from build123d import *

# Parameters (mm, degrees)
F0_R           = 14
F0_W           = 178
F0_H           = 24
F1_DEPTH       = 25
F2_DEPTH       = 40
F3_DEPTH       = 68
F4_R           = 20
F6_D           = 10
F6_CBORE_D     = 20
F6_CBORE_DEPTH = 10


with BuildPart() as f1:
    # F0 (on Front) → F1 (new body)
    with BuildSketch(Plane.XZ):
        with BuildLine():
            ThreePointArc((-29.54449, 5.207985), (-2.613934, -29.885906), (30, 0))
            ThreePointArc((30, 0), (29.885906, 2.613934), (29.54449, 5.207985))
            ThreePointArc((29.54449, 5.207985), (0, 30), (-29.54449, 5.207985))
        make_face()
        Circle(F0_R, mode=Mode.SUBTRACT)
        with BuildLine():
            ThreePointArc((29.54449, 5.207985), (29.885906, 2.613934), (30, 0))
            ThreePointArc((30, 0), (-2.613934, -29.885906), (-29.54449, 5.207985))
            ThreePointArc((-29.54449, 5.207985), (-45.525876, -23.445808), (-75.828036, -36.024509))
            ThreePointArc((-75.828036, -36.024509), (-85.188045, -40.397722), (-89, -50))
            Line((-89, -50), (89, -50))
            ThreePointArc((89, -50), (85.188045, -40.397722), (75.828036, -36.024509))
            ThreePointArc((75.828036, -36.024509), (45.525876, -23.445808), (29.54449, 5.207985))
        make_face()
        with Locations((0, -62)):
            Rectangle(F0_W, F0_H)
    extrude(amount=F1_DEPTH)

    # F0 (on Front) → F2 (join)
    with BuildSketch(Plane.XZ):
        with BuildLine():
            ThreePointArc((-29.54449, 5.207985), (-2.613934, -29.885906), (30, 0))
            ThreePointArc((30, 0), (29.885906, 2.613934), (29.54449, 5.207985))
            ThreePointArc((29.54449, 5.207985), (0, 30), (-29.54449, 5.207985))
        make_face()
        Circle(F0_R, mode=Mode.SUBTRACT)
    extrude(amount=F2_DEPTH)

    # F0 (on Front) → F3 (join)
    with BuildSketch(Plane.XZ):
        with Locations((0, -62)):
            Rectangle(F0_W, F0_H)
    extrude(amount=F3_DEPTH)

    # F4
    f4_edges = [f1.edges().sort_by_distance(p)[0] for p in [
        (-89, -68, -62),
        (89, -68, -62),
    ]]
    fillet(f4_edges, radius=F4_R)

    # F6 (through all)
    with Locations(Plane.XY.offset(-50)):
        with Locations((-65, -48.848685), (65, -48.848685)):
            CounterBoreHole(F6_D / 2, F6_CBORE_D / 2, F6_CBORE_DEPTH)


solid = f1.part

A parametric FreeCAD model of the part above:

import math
import FreeCAD as App
import Part
import Sketcher
from FreeCAD import Vector


def edges_at(feature, points):
    """Names of the edges that pass closest to the given points."""
    edges = feature.Shape.Edges
    near = lambda p: min(range(len(edges)), key=lambda i: edges[i].distToShape(Part.Vertex(*p))[0])
    return sorted({f"Edge{near(p) + 1}" for p in points})


def add_polygon(sketch, points):
    """Adds a closed chain of lines whose ends are joined by coincident constraints."""
    first, n = sketch.GeometryCount, len(points)
    for a, b in zip(points, points[1:] + points[:1]):
        sketch.addGeometry(Part.LineSegment(App.Vector(*a, 0), App.Vector(*b, 0)), False)
    for i in range(n):
        sketch.addConstraint(Sketcher.Constraint("Coincident", first + i, 2, first + (i + 1) % n, 1))

doc = App.newDocument("Part")
body = doc.addObject("PartDesign::Body", "Body")

sketch1 = body.newObject("Sketcher::SketchObject", "Sketch")
sketch1.AttachmentSupport = (doc.getObject("XZ_Plane"), [""])
sketch1.MapMode = "FlatFace"
sketch1.addGeometry([
    Part.ArcOfCircle(Part.Circle(Vector(0, 0, 0), Vector(0, 0, 1), 30), math.radians(9.997168), math.radians(170.002832)),
    Part.ArcOfCircle(Part.Circle(Vector(-78.785308, 13.887961, 0), Vector(0, 0, 1), 50.000001), math.radians(-86.609237), math.radians(-9.997169)),
    Part.ArcOfCircle(Part.Circle(Vector(-75.000001, -49.999999, 0), Vector(0, 0, 1), 13.999999), math.radians(93.390759), math.radians(180.000002)),
    Part.LineSegment(Vector(-89, -50, 0), Vector(-89, -74, 0)),
    Part.LineSegment(Vector(-89, -74, 0), Vector(89, -74, 0)),
    Part.LineSegment(Vector(89, -74, 0), Vector(89, -50, 0)),
    Part.ArcOfCircle(Part.Circle(Vector(75.000001, -49.999999, 0), Vector(0, 0, 1), 13.999999), math.radians(-0.000002), math.radians(86.609241)),
    Part.ArcOfCircle(Part.Circle(Vector(78.785308, 13.887961, 0), Vector(0, 0, 1), 50.000001), math.radians(-170.002831), math.radians(-93.390763)),
    Part.Circle(Vector(0, 0, 0), Vector(0, 0, 1), 14),
], False)
sketch1.addConstraint([
    Sketcher.Constraint("Tangent", 0, 2, 1, 2),
    Sketcher.Constraint("Tangent", 1, 1, 2, 1),
    Sketcher.Constraint("Tangent", 2, 2, 3, 1),
    Sketcher.Constraint("Coincident", 3, 2, 4, 1),
    Sketcher.Constraint("Coincident", 4, 2, 5, 1),
    Sketcher.Constraint("Tangent", 5, 2, 6, 1),
    Sketcher.Constraint("Tangent", 6, 2, 7, 2),
    Sketcher.Constraint("Tangent", 7, 1, 0, 1),
    Sketcher.Constraint("Vertical", 3),
    Sketcher.Constraint("Horizontal", 4),
    Sketcher.Constraint("Vertical", 5),
    Sketcher.Constraint("Coincident", 0, 3, -1, 1),
    Sketcher.Constraint("Coincident", 8, 3, -1, 1),
    Sketcher.Constraint("Equal", 2, 6),
    Sketcher.Constraint("Equal", 1, 7),
    Sketcher.Constraint("Equal", 6, 8),
    Sketcher.Constraint("Symmetric", 2, 3, 6, 3, -2),
    Sketcher.Constraint("Diameter", 8, 28.0),
    Sketcher.Constraint("Radius", 0, 30.0),
    Sketcher.Constraint("Radius", 1, 50.000001),
    Sketcher.Constraint("DistanceX", 4, 1, 4, 2, 178.0),
    Sketcher.Constraint("DistanceY", 3, 2, 3, 1, 24.0),
    Sketcher.Constraint("DistanceY", 2, 3, -1, 1, 49.999999),
])
pad1 = body.newObject("PartDesign::Pad", "Pad")
pad1.Profile = sketch1
pad1.Length = 25

sketch2 = body.newObject("Sketcher::SketchObject", "Sketch001")
sketch2.AttachmentSupport = (doc.getObject("XZ_Plane"), [""])
sketch2.MapMode = "FlatFace"
sketch2.addGeometry([
    Part.ArcOfCircle(Part.Circle(Vector(0, 0, 0), Vector(0, 0, 1), 30), math.radians(170.002831), math.radians(360.000001)),
    Part.ArcOfCircle(Part.Circle(Vector(0.00013, 0.000011, 0), Vector(0, 0, 1), 29.99987), math.radians(-0.000021), math.radians(9.99719)),
    Part.ArcOfCircle(Part.Circle(Vector(0, 0, 0), Vector(0, 0, 1), 30), math.radians(9.997168), math.radians(170.002832)),
    Part.Circle(Vector(0, 0, 0), Vector(0, 0, 1), 14),
], False)
sketch2.addConstraint([
    Sketcher.Constraint("Coincident", 0, 2, 1, 1),
    Sketcher.Constraint("Coincident", 1, 2, 2, 1),
    Sketcher.Constraint("Coincident", 2, 2, 0, 1),
    Sketcher.Constraint("Coincident", 0, 3, -1, 1),
    Sketcher.Constraint("Coincident", 2, 3, -1, 1),
    Sketcher.Constraint("Coincident", 3, 3, -1, 1),
    Sketcher.Constraint("PointOnObject", 0, 2, -1),
    Sketcher.Constraint("Diameter", 3, 28.0),
    Sketcher.Constraint("Radius", 0, 30.0),
    Sketcher.Constraint("Radius", 1, 29.99987),
    Sketcher.Constraint("DistanceX", -1, 1, 1, 2, 29.54449),
    Sketcher.Constraint("DistanceX", 2, 2, -1, 1, 29.54449),
])
pad2 = body.newObject("PartDesign::Pad", "Pad001")
pad2.Profile = sketch2
pad2.Length = 40

sketch3 = body.newObject("Sketcher::SketchObject", "Sketch002")
sketch3.AttachmentSupport = (doc.getObject("XZ_Plane"), [""])
sketch3.MapMode = "FlatFace"
add_polygon(sketch3, [(-89, -50), (-89, -74), (89, -74), (89, -50)])
sketch3.addConstraint([
    Sketcher.Constraint("Vertical", 0),
    Sketcher.Constraint("Horizontal", 1),
    Sketcher.Constraint("Vertical", 2),
    Sketcher.Constraint("Horizontal", 3),
    Sketcher.Constraint("DistanceX", 1, 1, 1, 2, 178.0),
    Sketcher.Constraint("DistanceY", 0, 2, 0, 1, 24.0),
    Sketcher.Constraint("DistanceX", 0, 2, -1, 1, 89.0),
    Sketcher.Constraint("DistanceY", 0, 2, -1, 1, 74.0),
])
pad3 = body.newObject("PartDesign::Pad", "Pad002")
pad3.Profile = sketch3
pad3.Length = 68
doc.recompute()

fillet = body.newObject("PartDesign::Fillet", "Fillet")
fillet.Base = (pad3, edges_at(pad3, [(-89, -68, -62), (89, -68, -62)]))
fillet.Radius = 20

sketch4 = body.newObject("Sketcher::SketchObject", "Sketch003")
sketch4.AttachmentSupport = (doc.getObject("XY_Plane"), [""])
sketch4.MapMode = "FlatFace"
sketch4.AttachmentOffset = App.Placement(Vector(0, 0, -50), App.Rotation())
sketch4.addGeometry([
    Part.Circle(Vector(-65, -48.848685, 0), Vector(0, 0, 1), 5),
    Part.Circle(Vector(65, -48.848685, 0), Vector(0, 0, 1), 5),
], False)
sketch4.addConstraint([
    Sketcher.Constraint("Equal", 0, 1),
    Sketcher.Constraint("Symmetric", 0, 3, 1, 3, -2),
    Sketcher.Constraint("Diameter", 0, 10.0),
    Sketcher.Constraint("DistanceX", 0, 3, -1, 1, 65.0),
    Sketcher.Constraint("DistanceY", 0, 3, -1, 1, 48.848685),
])
doc.recompute()
hole = body.newObject("PartDesign::Hole", "Hole")
hole.Profile = sketch4
hole.ThreadType = "None"
hole.Diameter = 10
hole.DepthType = "ThroughAll"
hole.HoleCutType = "Counterbore"
hole.HoleCutDiameter = 20
hole.HoleCutDepth = 10

doc.recompute()
